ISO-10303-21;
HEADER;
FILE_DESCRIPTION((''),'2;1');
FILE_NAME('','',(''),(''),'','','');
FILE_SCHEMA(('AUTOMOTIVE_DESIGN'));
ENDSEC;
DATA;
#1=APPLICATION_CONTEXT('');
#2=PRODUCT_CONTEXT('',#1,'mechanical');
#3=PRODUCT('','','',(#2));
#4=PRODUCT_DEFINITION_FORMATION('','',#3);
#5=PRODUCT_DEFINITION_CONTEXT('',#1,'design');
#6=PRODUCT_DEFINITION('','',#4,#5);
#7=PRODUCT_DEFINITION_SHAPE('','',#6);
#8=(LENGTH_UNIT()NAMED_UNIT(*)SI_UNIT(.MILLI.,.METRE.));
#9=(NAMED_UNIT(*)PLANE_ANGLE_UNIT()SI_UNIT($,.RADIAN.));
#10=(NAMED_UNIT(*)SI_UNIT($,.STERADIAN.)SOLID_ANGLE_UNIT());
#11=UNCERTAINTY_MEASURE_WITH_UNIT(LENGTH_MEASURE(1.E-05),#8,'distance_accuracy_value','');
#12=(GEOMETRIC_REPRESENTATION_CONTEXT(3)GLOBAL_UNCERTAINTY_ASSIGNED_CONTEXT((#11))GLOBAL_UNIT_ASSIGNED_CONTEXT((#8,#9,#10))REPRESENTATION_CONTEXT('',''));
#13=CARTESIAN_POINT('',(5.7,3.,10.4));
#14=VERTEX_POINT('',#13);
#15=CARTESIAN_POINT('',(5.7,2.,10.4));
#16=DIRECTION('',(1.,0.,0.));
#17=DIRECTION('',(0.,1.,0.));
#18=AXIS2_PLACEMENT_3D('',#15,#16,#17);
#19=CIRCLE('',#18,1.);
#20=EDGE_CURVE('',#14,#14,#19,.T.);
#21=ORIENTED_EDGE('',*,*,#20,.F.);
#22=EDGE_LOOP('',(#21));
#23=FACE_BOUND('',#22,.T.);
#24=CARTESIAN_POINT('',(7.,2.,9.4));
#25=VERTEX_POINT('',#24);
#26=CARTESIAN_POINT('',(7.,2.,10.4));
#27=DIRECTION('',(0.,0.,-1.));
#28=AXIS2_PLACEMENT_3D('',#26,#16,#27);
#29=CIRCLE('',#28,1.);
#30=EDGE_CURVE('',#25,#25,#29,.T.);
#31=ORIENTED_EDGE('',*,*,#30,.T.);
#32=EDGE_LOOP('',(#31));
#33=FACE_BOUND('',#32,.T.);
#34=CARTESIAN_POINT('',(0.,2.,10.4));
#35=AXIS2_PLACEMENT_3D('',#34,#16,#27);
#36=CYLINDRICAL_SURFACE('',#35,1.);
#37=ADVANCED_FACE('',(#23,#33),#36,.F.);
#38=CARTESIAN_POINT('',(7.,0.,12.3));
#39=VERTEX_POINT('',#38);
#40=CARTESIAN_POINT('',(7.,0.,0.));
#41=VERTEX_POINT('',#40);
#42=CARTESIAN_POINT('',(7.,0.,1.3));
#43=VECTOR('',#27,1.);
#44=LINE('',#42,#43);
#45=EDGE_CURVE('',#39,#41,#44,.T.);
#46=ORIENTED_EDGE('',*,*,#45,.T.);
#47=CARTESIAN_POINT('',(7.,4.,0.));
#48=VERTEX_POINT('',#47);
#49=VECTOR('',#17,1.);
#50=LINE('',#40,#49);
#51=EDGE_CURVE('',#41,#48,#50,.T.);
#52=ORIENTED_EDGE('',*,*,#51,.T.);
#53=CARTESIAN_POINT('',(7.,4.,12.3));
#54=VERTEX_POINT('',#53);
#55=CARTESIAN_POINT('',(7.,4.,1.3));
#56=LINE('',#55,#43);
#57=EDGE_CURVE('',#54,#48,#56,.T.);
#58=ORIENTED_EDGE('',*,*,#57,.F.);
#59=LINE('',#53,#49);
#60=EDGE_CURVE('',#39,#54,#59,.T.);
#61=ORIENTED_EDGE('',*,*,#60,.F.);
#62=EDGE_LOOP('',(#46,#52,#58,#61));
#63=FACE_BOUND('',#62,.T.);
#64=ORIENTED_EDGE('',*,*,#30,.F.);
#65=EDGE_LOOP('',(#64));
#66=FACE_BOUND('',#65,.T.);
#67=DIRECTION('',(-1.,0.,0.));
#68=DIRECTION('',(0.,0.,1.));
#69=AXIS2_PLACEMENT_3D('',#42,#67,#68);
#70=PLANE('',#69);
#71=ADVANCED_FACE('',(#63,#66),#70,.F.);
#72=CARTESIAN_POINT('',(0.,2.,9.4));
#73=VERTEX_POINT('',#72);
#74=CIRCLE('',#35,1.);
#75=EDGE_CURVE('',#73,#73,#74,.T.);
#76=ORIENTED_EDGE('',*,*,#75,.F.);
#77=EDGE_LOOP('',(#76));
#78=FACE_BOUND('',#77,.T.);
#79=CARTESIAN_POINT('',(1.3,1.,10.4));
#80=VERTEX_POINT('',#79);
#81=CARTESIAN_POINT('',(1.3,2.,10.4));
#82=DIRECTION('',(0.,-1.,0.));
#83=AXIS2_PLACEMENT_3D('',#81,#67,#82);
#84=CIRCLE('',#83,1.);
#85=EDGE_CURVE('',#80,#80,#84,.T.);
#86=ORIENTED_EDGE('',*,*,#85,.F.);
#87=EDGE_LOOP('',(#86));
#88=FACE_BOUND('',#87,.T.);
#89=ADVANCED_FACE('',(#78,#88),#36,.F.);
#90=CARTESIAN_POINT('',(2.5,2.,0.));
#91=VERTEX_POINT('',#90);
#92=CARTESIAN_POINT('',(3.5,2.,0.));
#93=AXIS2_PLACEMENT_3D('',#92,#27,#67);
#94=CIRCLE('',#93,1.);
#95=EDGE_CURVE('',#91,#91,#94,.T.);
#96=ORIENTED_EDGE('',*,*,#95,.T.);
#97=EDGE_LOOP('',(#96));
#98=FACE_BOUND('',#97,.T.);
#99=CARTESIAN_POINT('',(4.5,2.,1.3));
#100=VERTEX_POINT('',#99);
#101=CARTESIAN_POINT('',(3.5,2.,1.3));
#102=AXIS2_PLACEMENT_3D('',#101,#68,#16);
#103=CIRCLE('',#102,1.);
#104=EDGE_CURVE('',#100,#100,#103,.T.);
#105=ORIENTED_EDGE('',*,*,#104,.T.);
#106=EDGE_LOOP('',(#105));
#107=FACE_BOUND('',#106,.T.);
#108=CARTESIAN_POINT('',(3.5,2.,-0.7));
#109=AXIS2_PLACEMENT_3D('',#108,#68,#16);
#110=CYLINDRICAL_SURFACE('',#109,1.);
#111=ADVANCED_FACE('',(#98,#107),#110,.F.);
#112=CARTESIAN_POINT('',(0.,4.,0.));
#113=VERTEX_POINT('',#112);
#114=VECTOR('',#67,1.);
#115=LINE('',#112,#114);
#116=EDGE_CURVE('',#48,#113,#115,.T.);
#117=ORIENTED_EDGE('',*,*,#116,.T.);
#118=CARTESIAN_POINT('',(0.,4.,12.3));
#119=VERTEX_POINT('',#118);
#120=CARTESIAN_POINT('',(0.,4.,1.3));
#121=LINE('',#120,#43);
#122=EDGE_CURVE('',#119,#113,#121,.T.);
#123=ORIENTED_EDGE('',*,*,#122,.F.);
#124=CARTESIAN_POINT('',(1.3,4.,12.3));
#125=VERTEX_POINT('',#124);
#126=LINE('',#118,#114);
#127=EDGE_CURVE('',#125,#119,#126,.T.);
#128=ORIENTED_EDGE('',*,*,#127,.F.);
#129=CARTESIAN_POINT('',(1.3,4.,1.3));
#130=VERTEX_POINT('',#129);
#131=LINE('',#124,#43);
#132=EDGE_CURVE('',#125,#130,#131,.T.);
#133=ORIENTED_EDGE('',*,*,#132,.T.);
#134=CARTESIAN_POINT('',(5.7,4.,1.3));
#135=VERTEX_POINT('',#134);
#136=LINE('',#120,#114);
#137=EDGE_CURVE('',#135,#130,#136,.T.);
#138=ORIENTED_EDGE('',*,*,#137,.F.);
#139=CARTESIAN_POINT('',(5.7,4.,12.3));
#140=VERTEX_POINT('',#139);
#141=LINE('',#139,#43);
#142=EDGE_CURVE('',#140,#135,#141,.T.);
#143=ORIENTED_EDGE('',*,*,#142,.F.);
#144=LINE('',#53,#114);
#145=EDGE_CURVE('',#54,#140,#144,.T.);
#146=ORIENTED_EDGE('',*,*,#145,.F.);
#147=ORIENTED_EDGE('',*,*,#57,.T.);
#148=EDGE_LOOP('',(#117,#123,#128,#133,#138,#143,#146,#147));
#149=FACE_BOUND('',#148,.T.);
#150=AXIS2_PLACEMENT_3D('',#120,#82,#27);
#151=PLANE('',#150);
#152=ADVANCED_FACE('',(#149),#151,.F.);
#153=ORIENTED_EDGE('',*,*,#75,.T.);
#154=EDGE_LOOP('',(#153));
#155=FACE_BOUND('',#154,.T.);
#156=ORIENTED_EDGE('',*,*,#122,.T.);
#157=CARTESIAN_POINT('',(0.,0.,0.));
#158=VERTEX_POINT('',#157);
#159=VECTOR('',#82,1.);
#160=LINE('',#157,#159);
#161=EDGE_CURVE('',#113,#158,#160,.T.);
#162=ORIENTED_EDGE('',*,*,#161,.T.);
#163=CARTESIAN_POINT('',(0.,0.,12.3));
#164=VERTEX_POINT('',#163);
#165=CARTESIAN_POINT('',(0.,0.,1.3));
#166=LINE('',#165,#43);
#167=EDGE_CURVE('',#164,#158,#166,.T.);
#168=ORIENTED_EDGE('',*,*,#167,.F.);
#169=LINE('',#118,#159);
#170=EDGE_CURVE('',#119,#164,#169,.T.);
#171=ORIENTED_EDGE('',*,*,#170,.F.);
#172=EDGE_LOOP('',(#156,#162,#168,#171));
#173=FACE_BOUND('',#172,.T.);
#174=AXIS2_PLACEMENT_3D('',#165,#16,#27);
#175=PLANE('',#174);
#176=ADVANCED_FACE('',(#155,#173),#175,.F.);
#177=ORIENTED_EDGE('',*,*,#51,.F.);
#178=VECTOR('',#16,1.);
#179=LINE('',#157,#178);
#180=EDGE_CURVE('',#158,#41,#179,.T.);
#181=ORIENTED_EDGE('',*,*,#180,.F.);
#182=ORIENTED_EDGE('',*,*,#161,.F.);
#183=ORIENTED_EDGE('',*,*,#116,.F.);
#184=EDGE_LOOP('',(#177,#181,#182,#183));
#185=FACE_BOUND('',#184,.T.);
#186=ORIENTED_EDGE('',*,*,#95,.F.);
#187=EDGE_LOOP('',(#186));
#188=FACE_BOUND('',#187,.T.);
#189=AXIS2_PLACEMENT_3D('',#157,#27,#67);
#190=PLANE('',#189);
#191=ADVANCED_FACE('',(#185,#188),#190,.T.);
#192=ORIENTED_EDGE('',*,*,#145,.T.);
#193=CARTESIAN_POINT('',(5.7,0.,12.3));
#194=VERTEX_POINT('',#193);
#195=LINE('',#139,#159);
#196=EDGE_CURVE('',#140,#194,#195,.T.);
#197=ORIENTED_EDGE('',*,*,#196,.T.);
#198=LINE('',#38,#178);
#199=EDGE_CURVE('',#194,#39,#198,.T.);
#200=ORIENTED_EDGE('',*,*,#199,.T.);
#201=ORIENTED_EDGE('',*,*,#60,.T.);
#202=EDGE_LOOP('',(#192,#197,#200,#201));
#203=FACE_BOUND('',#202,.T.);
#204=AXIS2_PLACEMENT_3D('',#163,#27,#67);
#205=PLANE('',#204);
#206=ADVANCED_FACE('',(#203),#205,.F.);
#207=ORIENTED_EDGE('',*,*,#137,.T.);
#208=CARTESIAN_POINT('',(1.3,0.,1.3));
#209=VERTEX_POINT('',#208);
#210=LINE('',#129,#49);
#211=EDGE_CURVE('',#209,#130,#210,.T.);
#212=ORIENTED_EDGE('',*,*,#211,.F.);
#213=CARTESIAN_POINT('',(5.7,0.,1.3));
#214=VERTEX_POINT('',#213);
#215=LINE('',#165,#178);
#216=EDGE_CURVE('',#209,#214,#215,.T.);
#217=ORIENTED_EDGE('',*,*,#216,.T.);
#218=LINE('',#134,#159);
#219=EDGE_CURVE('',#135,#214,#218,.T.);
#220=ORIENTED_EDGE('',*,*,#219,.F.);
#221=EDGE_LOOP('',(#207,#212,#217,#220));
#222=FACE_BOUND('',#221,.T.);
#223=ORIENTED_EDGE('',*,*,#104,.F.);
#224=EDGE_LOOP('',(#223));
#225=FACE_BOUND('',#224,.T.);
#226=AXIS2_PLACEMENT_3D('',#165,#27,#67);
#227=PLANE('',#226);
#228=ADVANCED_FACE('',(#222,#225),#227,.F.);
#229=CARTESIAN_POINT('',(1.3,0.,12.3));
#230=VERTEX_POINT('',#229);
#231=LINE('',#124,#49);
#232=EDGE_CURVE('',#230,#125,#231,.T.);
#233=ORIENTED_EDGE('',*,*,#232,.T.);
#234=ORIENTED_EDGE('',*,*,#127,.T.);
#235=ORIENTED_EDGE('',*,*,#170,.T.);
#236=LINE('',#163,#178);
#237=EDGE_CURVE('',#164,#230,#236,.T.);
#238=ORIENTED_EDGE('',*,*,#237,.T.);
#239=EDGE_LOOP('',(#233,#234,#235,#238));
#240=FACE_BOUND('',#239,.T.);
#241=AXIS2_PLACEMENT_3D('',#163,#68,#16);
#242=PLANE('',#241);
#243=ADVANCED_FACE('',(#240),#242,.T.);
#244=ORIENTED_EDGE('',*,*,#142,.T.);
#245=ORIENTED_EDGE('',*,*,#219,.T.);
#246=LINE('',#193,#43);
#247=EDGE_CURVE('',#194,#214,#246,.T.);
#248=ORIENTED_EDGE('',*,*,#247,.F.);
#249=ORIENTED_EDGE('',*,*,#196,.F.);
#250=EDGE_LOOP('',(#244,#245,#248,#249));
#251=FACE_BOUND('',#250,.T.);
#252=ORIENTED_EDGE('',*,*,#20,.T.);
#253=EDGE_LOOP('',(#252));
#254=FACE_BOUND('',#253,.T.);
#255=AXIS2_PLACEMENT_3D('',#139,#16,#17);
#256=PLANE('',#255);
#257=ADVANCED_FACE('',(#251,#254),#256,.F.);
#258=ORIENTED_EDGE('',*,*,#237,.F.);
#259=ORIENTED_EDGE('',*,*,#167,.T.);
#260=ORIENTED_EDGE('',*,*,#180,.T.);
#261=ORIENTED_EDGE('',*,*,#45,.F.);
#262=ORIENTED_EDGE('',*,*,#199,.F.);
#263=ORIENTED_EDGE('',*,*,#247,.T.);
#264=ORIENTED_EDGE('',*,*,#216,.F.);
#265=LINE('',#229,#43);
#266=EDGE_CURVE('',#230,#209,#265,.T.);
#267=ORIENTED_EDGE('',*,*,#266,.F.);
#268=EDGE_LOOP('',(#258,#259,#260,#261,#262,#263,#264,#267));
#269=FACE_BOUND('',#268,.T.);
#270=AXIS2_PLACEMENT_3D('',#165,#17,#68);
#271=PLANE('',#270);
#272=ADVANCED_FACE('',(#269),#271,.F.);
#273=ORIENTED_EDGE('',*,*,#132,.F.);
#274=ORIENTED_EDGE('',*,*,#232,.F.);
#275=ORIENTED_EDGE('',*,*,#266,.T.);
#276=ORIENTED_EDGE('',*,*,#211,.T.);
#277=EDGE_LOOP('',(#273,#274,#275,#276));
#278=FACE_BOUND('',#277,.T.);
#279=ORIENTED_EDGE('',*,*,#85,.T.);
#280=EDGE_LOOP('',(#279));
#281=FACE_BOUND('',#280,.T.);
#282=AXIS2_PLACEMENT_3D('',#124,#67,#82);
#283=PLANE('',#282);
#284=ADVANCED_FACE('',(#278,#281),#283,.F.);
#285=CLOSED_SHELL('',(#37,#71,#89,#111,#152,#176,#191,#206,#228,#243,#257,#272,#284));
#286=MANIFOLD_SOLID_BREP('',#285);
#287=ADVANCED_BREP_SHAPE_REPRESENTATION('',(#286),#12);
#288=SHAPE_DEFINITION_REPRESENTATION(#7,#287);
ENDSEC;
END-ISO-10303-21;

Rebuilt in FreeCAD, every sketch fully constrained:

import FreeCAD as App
import Part
import Sketcher

V = App.Vector
Q = App.Units.Quantity

doc = App.newDocument("Part")
body = doc.addObject("PartDesign::Body", "Body")

sketch1 = doc.addObject("Sketcher::SketchObject", "Sketch")
body.addObject(sketch1)
sketch1.AttachmentSupport = (doc.XY_Plane, [""])
sketch1.MapMode = "FlatFace"
sketch1.addGeometry([
    Part.LineSegment(V(0, 4, 0), V(0, 0, 0)),
    Part.LineSegment(V(0, 0, 0), V(7, 0, 0)),
    Part.LineSegment(V(7, 0, 0), V(7, 4, 0)),
    Part.LineSegment(V(7, 4, 0), V(0, 4, 0)),
], False)
sketch1.addConstraint([
    Sketcher.Constraint("Coincident", 0, 2, 1, 1),
    Sketcher.Constraint("Coincident", 1, 2, 2, 1),
    Sketcher.Constraint("Coincident", 2, 2, 3, 1),
    Sketcher.Constraint("Coincident", 3, 2, 0, 1),
    Sketcher.Constraint("Vertical", 0),
    Sketcher.Constraint("Horizontal", 1),
    Sketcher.Constraint("Vertical", 2),
    Sketcher.Constraint("Horizontal", 3),
    Sketcher.Constraint("Coincident", 0, 2, -1, 1),
    Sketcher.Constraint("DistanceX", 1, 1, 1, 2, Q("7 mm")),
    Sketcher.Constraint("DistanceY", 0, 2, 0, 1, Q("4 mm")),
])
pad1 = doc.addObject("PartDesign::Pad", "Pad")
body.addObject(pad1)
pad1.Profile = sketch1
pad1.Length = 1.3

sketch2 = doc.addObject("Sketcher::SketchObject", "Sketch001")
body.addObject(sketch2)
sketch2.AttachmentSupport = (doc.XY_Plane, [""])
sketch2.MapMode = "FlatFace"
sketch2.AttachmentOffset = App.Placement(V(0, 0, 1.3), App.Rotation())
sketch2.addGeometry([
    Part.LineSegment(V(0, 4, 0), V(0, 0, 0)),
    Part.LineSegment(V(0, 0, 0), V(1.3, 0, 0)),
    Part.LineSegment(V(1.3, 0, 0), V(1.3, 4, 0)),
    Part.LineSegment(V(1.3, 4, 0), V(0, 4, 0)),
    Part.LineSegment(V(5.7, 4, 0), V(5.7, 0, 0)),
    Part.LineSegment(V(5.7, 0, 0), V(7, 0, 0)),
    Part.LineSegment(V(7, 0, 0), V(7, 4, 0)),
    Part.LineSegment(V(7, 4, 0), V(5.7, 4, 0)),
], False)
sketch2.addConstraint([
    Sketcher.Constraint("Coincident", 0, 2, 1, 1),
    Sketcher.Constraint("Coincident", 1, 2, 2, 1),
    Sketcher.Constraint("Coincident", 2, 2, 3, 1),
    Sketcher.Constraint("Coincident", 3, 2, 0, 1),
    Sketcher.Constraint("Coincident", 4, 2, 5, 1),
    Sketcher.Constraint("Coincident", 5, 2, 6, 1),
    Sketcher.Constraint("Coincident", 6, 2, 7, 1),
    Sketcher.Constraint("Coincident", 7, 2, 4, 1),
    Sketcher.Constraint("Vertical", 0),
    Sketcher.Constraint("Horizontal", 1),
    Sketcher.Constraint("Vertical", 2),
    Sketcher.Constraint("Horizontal", 3),
    Sketcher.Constraint("Vertical", 4),
    Sketcher.Constraint("Horizontal", 5),
    Sketcher.Constraint("Vertical", 6),
    Sketcher.Constraint("Horizontal", 7),
    Sketcher.Constraint("Coincident", 0, 2, -1, 1),
    Sketcher.Constraint("PointOnObject", 4, 2, -1),
    Sketcher.Constraint("Horizontal", 3, 2, 6, 2),
    Sketcher.Constraint("Equal", 3, 5),
    Sketcher.Constraint("DistanceY", 0, 2, 0, 1, Q("4 mm")),
    Sketcher.Constraint("DistanceX", 1, 1, 1, 2, Q("1.3 mm")),
    Sketcher.Constraint("DistanceX", -1, 1, 5, 2, Q("7 mm")),
])
pad2 = doc.addObject("PartDesign::Pad", "Pad001")
body.addObject(pad2)
pad2.Profile = sketch2
pad2.Length = 11

sketch3 = doc.addObject("Sketcher::SketchObject", "Sketch002")
body.addObject(sketch3)
sketch3.AttachmentSupport = (doc.XY_Plane, [""])
sketch3.MapMode = "FlatFace"
sketch3.AttachmentOffset = App.Placement(V(0, 0, 1.3), App.Rotation())
sketch3.addGeometry(Part.Circle(V(3.5, 2, 0), V(0, 0, 1), 1), False)
sketch3.addConstraint([
    Sketcher.Constraint("Diameter", 0, Q("2 mm")),
    Sketcher.Constraint("DistanceY", -1, 1, 0, 3, Q("2 mm")),
    Sketcher.Constraint("DistanceX", -1, 1, 0, 3, Q("3.5 mm")),
])
pocket1 = doc.addObject("PartDesign::Pocket", "Pocket")
body.addObject(pocket1)
pocket1.Profile = sketch3
pocket1.Length = 2

sketch4 = doc.addObject("Sketcher::SketchObject", "Sketch003")
body.addObject(sketch4)
sketch4.AttachmentSupport = (doc.YZ_Plane, [""])
sketch4.MapMode = "FlatFace"
sketch4.AttachmentOffset = App.Placement(V(0, 0, 7), App.Rotation())
sketch4.addGeometry(Part.Circle(V(2, 10.4, 0), V(0, 0, 1), 1), False)
sketch4.addConstraint([
    Sketcher.Constraint("Diameter", 0, Q("2 mm")),
    Sketcher.Constraint("DistanceX", -1, 1, 0, 3, Q("2 mm")),
    Sketcher.Constraint("DistanceY", -1, 1, 0, 3, Q("10.4 mm")),
])
pocket2 = doc.addObject("PartDesign::Pocket", "Pocket001")
body.addObject(pocket2)
pocket2.Profile = sketch4
pocket2.Length = 7

doc.recompute()
